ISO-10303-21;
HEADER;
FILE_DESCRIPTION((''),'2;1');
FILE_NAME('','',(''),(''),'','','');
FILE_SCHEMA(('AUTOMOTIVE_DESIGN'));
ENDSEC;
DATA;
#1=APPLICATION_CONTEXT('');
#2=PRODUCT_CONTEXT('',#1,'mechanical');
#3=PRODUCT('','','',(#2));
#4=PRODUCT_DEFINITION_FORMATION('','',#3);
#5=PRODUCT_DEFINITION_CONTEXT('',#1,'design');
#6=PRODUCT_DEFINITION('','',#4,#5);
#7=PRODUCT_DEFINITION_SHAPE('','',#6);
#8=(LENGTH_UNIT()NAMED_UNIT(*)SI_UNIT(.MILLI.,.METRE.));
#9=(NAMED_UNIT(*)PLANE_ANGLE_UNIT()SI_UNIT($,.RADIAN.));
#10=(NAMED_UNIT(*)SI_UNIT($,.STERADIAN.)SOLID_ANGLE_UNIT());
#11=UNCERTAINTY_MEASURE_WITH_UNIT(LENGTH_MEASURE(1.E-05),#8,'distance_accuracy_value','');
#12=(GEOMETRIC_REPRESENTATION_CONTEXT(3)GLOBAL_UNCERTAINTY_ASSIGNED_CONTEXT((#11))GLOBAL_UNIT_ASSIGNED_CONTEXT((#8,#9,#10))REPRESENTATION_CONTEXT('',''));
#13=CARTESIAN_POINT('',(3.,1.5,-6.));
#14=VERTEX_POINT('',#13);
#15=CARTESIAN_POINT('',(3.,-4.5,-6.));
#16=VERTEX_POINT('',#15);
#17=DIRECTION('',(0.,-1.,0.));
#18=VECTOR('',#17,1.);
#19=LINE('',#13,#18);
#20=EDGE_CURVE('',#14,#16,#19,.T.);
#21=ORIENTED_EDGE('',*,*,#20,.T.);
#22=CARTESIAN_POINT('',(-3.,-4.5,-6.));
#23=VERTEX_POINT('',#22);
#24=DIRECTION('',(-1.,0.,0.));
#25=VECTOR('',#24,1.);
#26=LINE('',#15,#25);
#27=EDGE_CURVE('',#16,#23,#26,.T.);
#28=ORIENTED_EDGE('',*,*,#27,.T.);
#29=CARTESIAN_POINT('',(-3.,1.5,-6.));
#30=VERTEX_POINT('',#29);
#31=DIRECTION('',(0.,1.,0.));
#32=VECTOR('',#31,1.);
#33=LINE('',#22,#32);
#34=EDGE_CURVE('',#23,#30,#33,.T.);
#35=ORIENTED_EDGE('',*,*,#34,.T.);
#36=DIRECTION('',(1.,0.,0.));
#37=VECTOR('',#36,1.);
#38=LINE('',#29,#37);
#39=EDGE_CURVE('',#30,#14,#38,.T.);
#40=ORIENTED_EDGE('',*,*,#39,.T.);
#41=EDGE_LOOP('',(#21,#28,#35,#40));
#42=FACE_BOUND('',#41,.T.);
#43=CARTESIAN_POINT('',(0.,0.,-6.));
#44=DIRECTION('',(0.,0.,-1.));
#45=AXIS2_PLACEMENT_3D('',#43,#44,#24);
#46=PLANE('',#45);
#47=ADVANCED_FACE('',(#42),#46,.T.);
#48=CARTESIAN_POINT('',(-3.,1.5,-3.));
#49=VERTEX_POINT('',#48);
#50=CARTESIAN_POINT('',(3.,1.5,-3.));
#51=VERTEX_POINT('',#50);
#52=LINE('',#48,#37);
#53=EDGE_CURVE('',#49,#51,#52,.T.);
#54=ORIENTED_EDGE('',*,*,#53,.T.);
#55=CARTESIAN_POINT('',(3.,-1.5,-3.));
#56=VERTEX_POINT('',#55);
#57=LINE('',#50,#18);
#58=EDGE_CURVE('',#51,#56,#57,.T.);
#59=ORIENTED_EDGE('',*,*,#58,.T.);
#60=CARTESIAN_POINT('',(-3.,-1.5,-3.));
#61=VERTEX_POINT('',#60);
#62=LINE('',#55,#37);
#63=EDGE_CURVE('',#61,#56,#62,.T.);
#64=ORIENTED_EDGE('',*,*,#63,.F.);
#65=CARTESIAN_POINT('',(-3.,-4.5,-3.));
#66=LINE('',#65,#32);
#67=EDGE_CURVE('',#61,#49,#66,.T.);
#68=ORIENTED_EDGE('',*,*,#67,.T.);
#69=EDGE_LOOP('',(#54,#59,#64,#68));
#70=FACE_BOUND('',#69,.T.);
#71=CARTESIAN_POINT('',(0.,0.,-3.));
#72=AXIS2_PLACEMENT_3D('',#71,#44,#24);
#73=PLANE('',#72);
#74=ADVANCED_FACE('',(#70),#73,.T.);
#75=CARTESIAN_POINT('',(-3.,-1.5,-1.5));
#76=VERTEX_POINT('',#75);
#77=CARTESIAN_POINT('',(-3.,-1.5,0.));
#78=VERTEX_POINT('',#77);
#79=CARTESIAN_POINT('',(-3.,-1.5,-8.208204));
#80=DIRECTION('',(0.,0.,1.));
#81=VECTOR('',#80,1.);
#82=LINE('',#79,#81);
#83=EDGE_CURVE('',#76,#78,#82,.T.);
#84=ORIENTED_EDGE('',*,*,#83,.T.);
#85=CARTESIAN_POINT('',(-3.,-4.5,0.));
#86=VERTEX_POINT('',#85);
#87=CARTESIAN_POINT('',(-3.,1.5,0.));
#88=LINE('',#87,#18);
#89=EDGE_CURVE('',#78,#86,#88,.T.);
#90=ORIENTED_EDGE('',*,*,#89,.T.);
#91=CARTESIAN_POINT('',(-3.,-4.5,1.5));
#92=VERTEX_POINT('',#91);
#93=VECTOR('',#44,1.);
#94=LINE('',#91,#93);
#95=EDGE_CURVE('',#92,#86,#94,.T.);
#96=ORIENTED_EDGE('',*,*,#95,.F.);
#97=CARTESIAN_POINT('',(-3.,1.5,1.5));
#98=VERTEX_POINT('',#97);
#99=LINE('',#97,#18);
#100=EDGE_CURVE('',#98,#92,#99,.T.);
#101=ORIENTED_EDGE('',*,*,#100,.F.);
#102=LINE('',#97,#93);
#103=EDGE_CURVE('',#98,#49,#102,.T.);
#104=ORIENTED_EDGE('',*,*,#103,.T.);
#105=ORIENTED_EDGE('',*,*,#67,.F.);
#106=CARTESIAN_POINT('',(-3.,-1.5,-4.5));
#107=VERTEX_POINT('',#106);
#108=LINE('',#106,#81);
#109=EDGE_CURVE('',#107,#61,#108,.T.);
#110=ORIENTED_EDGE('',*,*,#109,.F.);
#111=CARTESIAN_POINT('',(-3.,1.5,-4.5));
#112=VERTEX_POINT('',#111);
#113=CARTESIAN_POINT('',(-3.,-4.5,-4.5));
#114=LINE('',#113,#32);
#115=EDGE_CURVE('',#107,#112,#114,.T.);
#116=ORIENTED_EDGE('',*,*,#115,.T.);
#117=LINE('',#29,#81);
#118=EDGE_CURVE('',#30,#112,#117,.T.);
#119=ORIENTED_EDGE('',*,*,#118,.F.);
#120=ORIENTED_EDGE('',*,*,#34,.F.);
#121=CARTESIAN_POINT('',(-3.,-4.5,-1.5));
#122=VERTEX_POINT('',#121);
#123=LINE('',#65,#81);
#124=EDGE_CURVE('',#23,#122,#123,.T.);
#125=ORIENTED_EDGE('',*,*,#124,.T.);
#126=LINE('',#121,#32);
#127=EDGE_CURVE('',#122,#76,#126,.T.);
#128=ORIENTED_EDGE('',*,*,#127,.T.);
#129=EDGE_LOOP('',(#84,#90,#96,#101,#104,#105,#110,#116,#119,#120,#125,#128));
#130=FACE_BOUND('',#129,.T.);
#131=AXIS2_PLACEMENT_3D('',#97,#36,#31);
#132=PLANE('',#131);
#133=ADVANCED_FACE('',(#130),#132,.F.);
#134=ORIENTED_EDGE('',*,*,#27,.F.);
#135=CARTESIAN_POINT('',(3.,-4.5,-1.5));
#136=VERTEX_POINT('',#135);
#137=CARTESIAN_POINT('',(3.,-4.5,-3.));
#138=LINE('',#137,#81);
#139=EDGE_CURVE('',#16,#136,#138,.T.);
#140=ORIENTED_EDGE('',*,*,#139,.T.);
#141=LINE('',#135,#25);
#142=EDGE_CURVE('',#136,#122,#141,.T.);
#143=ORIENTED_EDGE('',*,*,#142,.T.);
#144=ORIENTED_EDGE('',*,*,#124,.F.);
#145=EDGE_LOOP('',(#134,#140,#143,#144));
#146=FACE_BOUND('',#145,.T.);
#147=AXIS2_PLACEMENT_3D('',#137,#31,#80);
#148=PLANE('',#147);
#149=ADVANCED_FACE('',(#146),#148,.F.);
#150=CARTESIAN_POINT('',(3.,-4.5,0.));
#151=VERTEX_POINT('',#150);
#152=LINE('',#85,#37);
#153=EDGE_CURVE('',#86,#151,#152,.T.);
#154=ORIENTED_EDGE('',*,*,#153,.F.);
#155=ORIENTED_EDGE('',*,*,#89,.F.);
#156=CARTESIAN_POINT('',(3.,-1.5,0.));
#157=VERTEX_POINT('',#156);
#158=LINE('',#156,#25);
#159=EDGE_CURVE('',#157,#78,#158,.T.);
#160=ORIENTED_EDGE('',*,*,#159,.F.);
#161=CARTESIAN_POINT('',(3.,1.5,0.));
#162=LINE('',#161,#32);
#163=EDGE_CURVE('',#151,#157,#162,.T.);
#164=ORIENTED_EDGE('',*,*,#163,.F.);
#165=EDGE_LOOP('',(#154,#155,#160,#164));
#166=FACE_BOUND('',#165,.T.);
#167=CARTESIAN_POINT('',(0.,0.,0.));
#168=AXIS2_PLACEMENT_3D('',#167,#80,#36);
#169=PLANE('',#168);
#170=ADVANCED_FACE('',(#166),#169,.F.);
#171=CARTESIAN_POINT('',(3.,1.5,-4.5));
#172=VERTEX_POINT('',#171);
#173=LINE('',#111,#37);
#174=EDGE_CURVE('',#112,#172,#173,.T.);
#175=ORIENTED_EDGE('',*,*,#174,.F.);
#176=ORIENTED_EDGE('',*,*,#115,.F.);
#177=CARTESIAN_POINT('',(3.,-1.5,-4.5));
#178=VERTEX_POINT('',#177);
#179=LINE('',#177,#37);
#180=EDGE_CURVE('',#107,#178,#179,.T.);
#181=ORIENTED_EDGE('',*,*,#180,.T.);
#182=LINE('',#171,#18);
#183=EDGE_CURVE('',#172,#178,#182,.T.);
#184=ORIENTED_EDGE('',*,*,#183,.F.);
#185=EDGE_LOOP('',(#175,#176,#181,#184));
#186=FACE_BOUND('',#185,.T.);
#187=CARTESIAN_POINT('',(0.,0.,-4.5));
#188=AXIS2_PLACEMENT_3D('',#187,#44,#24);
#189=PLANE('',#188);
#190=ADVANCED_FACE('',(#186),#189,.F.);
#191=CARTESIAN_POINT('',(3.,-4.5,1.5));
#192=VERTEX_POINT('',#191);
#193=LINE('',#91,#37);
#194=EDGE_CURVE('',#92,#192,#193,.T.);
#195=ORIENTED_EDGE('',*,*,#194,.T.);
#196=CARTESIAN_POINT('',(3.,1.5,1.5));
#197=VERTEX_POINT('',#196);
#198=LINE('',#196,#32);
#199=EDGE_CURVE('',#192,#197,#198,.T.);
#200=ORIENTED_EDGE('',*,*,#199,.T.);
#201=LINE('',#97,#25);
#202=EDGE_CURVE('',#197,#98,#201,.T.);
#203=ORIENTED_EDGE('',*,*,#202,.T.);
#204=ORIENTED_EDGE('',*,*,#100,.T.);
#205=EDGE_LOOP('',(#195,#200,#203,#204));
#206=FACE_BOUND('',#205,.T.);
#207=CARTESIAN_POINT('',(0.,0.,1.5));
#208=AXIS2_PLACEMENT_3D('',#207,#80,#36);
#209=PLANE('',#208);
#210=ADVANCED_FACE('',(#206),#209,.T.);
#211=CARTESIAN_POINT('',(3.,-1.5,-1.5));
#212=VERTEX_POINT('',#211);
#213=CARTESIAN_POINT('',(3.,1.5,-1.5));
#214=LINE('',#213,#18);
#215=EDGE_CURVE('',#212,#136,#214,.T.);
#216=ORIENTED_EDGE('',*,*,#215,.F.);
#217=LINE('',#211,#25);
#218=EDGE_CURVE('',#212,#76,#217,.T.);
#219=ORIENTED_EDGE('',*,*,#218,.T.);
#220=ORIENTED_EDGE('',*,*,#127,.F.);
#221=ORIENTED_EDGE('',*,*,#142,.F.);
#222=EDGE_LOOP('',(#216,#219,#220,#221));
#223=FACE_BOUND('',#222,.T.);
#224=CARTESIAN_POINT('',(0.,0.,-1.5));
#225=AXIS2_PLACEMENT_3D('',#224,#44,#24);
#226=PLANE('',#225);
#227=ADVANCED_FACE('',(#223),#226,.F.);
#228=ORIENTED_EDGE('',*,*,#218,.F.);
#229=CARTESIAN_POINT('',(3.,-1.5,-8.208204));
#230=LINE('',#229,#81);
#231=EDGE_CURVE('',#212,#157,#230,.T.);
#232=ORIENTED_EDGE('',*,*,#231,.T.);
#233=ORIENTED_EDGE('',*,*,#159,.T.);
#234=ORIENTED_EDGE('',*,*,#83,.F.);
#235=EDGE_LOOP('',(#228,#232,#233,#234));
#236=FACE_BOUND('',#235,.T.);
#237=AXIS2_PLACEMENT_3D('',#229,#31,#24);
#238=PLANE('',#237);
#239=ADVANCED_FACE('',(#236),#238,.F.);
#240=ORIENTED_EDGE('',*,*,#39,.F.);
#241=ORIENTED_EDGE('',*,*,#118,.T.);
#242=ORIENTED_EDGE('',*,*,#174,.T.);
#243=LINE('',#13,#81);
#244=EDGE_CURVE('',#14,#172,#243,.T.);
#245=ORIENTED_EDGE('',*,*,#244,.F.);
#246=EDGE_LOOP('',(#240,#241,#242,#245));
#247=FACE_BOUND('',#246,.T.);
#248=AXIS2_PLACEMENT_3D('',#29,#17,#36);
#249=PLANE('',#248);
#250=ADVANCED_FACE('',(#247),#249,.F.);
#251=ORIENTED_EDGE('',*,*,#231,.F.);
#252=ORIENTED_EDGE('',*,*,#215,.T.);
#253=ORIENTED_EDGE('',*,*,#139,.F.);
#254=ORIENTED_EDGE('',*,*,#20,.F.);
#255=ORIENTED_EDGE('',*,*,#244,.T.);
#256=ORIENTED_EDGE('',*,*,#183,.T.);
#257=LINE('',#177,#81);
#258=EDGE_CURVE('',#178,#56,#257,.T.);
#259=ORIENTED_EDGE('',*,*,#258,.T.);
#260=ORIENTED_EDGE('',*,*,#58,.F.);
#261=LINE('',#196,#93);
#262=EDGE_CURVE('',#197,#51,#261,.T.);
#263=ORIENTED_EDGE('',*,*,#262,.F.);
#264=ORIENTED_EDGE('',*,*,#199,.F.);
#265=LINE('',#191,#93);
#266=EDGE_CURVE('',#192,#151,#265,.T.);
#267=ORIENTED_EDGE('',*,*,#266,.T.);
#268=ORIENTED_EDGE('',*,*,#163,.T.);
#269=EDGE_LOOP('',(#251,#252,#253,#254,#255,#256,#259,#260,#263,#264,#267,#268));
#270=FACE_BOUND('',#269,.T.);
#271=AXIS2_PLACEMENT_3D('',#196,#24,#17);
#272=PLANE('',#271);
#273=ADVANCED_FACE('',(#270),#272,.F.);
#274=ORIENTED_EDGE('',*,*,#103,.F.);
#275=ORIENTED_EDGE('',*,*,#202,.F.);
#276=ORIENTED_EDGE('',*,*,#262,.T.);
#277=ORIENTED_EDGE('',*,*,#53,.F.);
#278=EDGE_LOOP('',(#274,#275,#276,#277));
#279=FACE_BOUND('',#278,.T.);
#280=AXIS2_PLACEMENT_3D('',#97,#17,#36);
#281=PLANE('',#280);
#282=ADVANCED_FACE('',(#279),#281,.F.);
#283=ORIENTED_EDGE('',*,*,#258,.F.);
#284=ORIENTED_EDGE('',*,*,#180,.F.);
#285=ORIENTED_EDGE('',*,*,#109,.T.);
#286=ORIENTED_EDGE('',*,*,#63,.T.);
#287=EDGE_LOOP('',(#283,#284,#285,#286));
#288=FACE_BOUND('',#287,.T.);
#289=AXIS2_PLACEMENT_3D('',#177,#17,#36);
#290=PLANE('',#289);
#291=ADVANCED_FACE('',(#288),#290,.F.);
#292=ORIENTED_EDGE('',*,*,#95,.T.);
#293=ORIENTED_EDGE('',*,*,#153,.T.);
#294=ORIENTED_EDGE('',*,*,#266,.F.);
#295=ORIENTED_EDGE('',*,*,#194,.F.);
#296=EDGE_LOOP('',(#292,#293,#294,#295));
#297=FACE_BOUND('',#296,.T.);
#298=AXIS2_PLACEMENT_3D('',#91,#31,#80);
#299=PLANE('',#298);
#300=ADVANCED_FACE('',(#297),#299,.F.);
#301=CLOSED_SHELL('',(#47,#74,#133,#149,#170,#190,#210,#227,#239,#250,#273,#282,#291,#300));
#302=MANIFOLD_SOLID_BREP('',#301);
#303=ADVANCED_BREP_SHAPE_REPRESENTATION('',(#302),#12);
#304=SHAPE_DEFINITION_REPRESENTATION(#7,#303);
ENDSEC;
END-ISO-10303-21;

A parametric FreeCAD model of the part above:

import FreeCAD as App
import Part
import Sketcher
from FreeCAD import Vector
Q = App.Units.Quantity

doc = App.newDocument("Part")
body = doc.addObject("PartDesign::Body", "Body")

# Sketch on XY plane
sketch1 = body.newObject("Sketcher::SketchObject", "Sketch")
sketch1.AttachmentSupport = (doc.getObject("XY_Plane"), [""])
sketch1.MapMode = "FlatFace"
sketch1.addGeometry([
    Part.LineSegment(Vector(-3, 2, 0), Vector(-3, -4, 0)),
    Part.LineSegment(Vector(-3, -4, 0), Vector(3, -4, 0)),
    Part.LineSegment(Vector(3, -4, 0), Vector(3, 2, 0)),
    Part.LineSegment(Vector(3, 2, 0), Vector(-3, 2, 0)),
], False)
sketch1.addConstraint([
    Sketcher.Constraint("Coincident", 0, 2, 1, 1),
    Sketcher.Constraint("Coincident", 1, 2, 2, 1),
    Sketcher.Constraint("Coincident", 2, 2, 3, 1),
    Sketcher.Constraint("Coincident", 3, 2, 0, 1),
    Sketcher.Constraint("Vertical", 0),
    Sketcher.Constraint("Horizontal", 1),
    Sketcher.Constraint("Vertical", 2),
    Sketcher.Constraint("Horizontal", 3),
    Sketcher.Constraint("Equal", 3, 0),
    Sketcher.Constraint("DistanceX", 1, 1, 1, 2, Q("6 mm")),
    Sketcher.Constraint("DistanceX", 0, 2, -1, 1, Q("3 mm")),
    Sketcher.Constraint("DistanceY", 0, 2, -1, 1, Q("4.5 mm")),
])
pad1 = body.newObject("PartDesign::Pad", "Pad")
pad1.Profile = sketch1
pad1.Length = 1.5

# Sketch on XY plane
sketch2 = body.newObject("Sketcher::SketchObject", "Sketch001")
sketch2.AttachmentSupport = (doc.getObject("XY_Plane"), [""])
sketch2.MapMode = "FlatFace"
sketch2.addGeometry([
    Part.LineSegment(Vector(3, 1.5, 0), Vector(3, -1.5, 0)),
    Part.LineSegment(Vector(3, -1.5, 0), Vector(-3, -1.5, 0)),
    Part.LineSegment(Vector(-3, -1.5, 0), Vector(-3, 1.5, 0)),
    Part.LineSegment(Vector(-3, 1.5, 0), Vector(3, 1.5, 0)),
], False)
sketch2.addConstraint([
    Sketcher.Constraint("Coincident", 0, 2, 1, 1),
    Sketcher.Constraint("Coincident", 1, 2, 2, 1),
    Sketcher.Constraint("Coincident", 2, 2, 3, 1),
    Sketcher.Constraint("Coincident", 3, 2, 0, 1),
    Sketcher.Constraint("Vertical", 0),
    Sketcher.Constraint("Horizontal", 1),
    Sketcher.Constraint("Vertical", 2),
    Sketcher.Constraint("Horizontal", 3),
    Sketcher.Constraint("Symmetric", 0, 2, 2, 2, -1, 1),
    Sketcher.Constraint("DistanceX", 1, 2, 1, 1, Q("6 mm")),
    Sketcher.Constraint("DistanceY", 0, 2, 0, 1, Q("3 mm")),
])
pad2 = body.newObject("PartDesign::Pad", "Pad001")
pad2.Profile = sketch2
pad2.Length = 1.5
pad2.Reversed = True

# Sketch on XY plane
sketch3 = body.newObject("Sketcher::SketchObject", "Sketch002")
sketch3.AttachmentSupport = (doc.getObject("XY_Plane"), [""])
sketch3.MapMode = "FlatFace"
sketch3.AttachmentOffset = App.Placement(Vector(0, 0, -1.5), App.Rotation())
sketch3.addGeometry([
    Part.LineSegment(Vector(3, 2, 0), Vector(3, -4, 0)),
    Part.LineSegment(Vector(3, -4, 0), Vector(-3, -4, 0)),
    Part.LineSegment(Vector(-3, -4, 0), Vector(-3, 2, 0)),
    Part.LineSegment(Vector(-3, 2, 0), Vector(3, 2, 0)),
], False)
sketch3.addConstraint([
    Sketcher.Constraint("Coincident", 0, 2, 1, 1),
    Sketcher.Constraint("Coincident", 1, 2, 2, 1),
    Sketcher.Constraint("Coincident", 2, 2, 3, 1),
    Sketcher.Constraint("Coincident", 3, 2, 0, 1),
    Sketcher.Constraint("Vertical", 0),
    Sketcher.Constraint("Horizontal", 1),
    Sketcher.Constraint("Vertical", 2),
    Sketcher.Constraint("Horizontal", 3),
    Sketcher.Constraint("Equal", 3, 0),
    Sketcher.Constraint("DistanceX", 1, 2, 1, 1, Q("6 mm")),
    Sketcher.Constraint("DistanceX", -1, 1, 0, 2, Q("3 mm")),
    Sketcher.Constraint("DistanceY", 0, 2, -1, 1, Q("4.5 mm")),
])
pad3 = body.newObject("PartDesign::Pad", "Pad002")
pad3.Profile = sketch3
pad3.Length = 1.5
pad3.Reversed = True

# Sketch on XY plane
sketch4 = body.newObject("Sketcher::SketchObject", "Sketch003")
sketch4.AttachmentSupport = (doc.getObject("XY_Plane"), [""])
sketch4.MapMode = "FlatFace"
sketch4.AttachmentOffset = App.Placement(Vector(0, 0, -3), App.Rotation())
sketch4.addGeometry([
    Part.LineSegment(Vector(3, -1.5, 0), Vector(3, -4.5, 0)),
    Part.LineSegment(Vector(3, -4.5, 0), Vector(-3, -4.5, 0)),
    Part.LineSegment(Vector(-3, -4.5, 0), Vector(-3, -1.5, 0)),
    Part.LineSegment(Vector(-3, -1.5, 0), Vector(3, -1.5, 0)),
], False)
sketch4.addConstraint([
    Sketcher.Constraint("Coincident", 0, 2, 1, 1),
    Sketcher.Constraint("Coincident", 1, 2, 2, 1),
    Sketcher.Constraint("Coincident", 2, 2, 3, 1),
    Sketcher.Constraint("Coincident", 3, 2, 0, 1),
    Sketcher.Constraint("Vertical", 0),
    Sketcher.Constraint("Horizontal", 1),
    Sketcher.Constraint("Vertical", 2),
    Sketcher.Constraint("Horizontal", 3),
    Sketcher.Constraint("DistanceX", 1, 2, 1, 1, Q("6 mm")),
    Sketcher.Constraint("DistanceY", 0, 2, 0, 1, Q("3 mm")),
    Sketcher.Constraint("DistanceX", -1, 1, 0, 2, Q("3 mm")),
    Sketcher.Constraint("DistanceY", 0, 2, -1, 1, Q("4.5 mm")),
])
pad4 = body.newObject("PartDesign::Pad", "Pad003")
pad4.Profile = sketch4
pad4.Length = 1.5
pad4.Reversed = True

# Sketch on XY plane
sketch5 = body.newObject("Sketcher::SketchObject", "Sketch004")
sketch5.AttachmentSupport = (doc.getObject("XY_Plane"), [""])
sketch5.MapMode = "FlatFace"
sketch5.AttachmentOffset = App.Placement(Vector(0, 0, -4.5), App.Rotation())
sketch5.addGeometry([
    Part.LineSegment(Vector(3, 2, 0), Vector(3, -4, 0)),
    Part.LineSegment(Vector(3, -4, 0), Vector(-3, -4, 0)),
    Part.LineSegment(Vector(-3, -4, 0), Vector(-3, 2, 0)),
    Part.LineSegment(Vector(-3, 2, 0), Vector(3, 2, 0)),
], False)
sketch5.addConstraint([
    Sketcher.Constraint("Coincident", 0, 2, 1, 1),
    Sketcher.Constraint("Coincident", 1, 2, 2, 1),
    Sketcher.Constraint("Coincident", 2, 2, 3, 1),
    Sketcher.Constraint("Coincident", 3, 2, 0, 1),
    Sketcher.Constraint("Vertical", 0),
    Sketcher.Constraint("Horizontal", 1),
    Sketcher.Constraint("Vertical", 2),
    Sketcher.Constraint("Horizontal", 3),
    Sketcher.Constraint("Equal", 3, 0),
    Sketcher.Constraint("DistanceX", 1, 2, 1, 1, Q("6 mm")),
    Sketcher.Constraint("DistanceX", -1, 1, 0, 2, Q("3 mm")),
    Sketcher.Constraint("DistanceY", 0, 2, -1, 1, Q("4.5 mm")),
])
pad5 = body.newObject("PartDesign::Pad", "Pad004")
pad5.Profile = sketch5
pad5.Length = 1.5
pad5.Reversed = True

doc.recompute()
